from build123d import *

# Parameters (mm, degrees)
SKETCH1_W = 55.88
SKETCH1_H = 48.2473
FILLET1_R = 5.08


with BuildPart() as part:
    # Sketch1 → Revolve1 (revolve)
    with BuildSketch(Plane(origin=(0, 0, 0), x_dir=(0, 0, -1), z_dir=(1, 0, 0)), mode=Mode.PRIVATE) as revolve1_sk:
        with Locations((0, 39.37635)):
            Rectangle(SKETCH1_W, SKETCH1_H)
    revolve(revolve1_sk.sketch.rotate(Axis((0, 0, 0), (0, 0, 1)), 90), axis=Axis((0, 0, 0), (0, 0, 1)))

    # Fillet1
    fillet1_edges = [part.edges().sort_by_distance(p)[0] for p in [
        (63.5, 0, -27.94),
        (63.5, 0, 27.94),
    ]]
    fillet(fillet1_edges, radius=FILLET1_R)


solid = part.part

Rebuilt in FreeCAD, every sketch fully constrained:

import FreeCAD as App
import Part
import Sketcher
Q = App.Units.Quantity


def edges_at(feature, points):
    """Names of the edges that pass closest to the given points."""
    edges = feature.Shape.Edges
    near = lambda p: min(range(len(edges)), key=lambda i: edges[i].distToShape(Part.Vertex(*p))[0])
    return sorted({f"Edge{near(p) + 1}" for p in points})


def add_polygon(sketch, points):
    """Adds a closed chain of lines whose ends are joined by coincident constraints."""
    first, n = sketch.GeometryCount, len(points)
    for a, b in zip(points, points[1:] + points[:1]):
        sketch.addGeometry(Part.LineSegment(App.Vector(*a, 0), App.Vector(*b, 0)), False)
    for i in range(n):
        sketch.addConstraint(Sketcher.Constraint("Coincident", first + i, 2, first + (i + 1) % n, 1))

doc = App.newDocument("Part")
body = doc.addObject("PartDesign::Body", "Body")

sketch1 = body.newObject("Sketcher::SketchObject", "Sketch")
sketch1.AttachmentSupport = (doc.getObject("YZ_Plane"), [""])
sketch1.MapMode = "FlatFace"
add_polygon(sketch1, [(64, 28), (15, 28), (15, -28), (64, -28)])
sketch1.addConstraint([
    Sketcher.Constraint("Horizontal", 0),
    Sketcher.Constraint("Vertical", 1),
    Sketcher.Constraint("Horizontal", 2),
    Sketcher.Constraint("Vertical", 3),
    Sketcher.Constraint("DistanceY", 1, 2, 1, 1, Q("2.2 in")),
    Sketcher.Constraint("DistanceY", -1, 1, 0, 2, Q("1.1 in")),
    Sketcher.Constraint("DistanceX", -1, 1, 2, 2, Q("2.5 in")),
    Sketcher.Constraint("DistanceX", 0, 2, 0, 1, Q("1.8995 in")),
])
revolution = body.newObject("PartDesign::Revolution", "Revolution")
revolution.Profile = sketch1
revolution.ReferenceAxis = (sketch1, ["V_Axis"])
revolution.Angle = 360
doc.recompute()

fillet = body.newObject("PartDesign::Fillet", "Fillet")
fillet.Base = (revolution, edges_at(revolution, [(63.5, 0, -27.94), (63.5, 0, 27.94)]))
fillet.Radius = Q("0.2 in")

doc.recompute()
